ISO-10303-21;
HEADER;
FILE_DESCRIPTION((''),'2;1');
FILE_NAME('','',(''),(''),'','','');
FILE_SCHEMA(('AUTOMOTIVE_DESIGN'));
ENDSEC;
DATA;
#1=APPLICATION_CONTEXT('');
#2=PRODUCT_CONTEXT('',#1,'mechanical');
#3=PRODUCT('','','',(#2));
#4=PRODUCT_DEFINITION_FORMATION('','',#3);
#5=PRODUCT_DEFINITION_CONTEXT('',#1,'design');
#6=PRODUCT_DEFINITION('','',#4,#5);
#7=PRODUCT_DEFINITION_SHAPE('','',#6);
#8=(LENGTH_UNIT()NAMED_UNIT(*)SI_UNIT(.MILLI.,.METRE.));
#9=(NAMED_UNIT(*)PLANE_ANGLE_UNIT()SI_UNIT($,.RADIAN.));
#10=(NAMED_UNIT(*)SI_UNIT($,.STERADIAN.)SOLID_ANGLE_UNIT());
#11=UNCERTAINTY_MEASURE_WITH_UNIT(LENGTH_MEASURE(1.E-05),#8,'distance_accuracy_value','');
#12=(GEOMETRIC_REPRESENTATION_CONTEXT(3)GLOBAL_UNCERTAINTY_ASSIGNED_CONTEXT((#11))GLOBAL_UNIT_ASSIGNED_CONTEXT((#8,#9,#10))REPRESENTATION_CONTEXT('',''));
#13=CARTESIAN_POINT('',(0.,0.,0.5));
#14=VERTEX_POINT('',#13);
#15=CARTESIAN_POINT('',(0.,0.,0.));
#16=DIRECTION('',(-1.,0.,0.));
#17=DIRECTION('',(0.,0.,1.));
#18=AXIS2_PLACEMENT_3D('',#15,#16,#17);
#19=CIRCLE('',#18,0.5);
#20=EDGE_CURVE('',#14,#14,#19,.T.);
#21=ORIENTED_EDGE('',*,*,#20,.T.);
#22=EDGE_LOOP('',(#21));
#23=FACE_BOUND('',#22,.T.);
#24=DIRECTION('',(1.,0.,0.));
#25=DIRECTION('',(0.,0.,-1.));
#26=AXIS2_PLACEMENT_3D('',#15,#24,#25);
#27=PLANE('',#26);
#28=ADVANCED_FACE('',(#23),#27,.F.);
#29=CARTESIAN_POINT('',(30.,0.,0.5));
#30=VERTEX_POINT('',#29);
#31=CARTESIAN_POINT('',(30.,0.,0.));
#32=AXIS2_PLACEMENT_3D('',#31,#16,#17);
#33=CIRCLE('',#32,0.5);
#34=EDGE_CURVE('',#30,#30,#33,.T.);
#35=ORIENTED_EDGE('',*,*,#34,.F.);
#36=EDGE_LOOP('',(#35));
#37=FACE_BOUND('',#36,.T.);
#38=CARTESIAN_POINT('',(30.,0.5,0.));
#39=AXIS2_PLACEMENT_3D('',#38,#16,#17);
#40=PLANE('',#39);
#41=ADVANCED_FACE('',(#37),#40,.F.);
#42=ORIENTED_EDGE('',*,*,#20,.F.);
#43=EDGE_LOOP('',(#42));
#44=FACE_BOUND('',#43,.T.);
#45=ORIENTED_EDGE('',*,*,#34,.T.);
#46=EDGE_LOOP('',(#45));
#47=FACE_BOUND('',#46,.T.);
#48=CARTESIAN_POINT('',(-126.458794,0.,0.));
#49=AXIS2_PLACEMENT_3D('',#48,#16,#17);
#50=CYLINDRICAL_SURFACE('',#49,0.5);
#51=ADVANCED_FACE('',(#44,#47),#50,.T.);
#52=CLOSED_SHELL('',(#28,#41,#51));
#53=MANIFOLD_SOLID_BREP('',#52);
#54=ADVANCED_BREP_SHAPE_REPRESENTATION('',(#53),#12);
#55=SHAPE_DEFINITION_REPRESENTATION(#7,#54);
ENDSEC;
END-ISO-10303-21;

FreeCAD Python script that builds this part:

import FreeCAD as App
import Part
import Sketcher
from FreeCAD import Vector
Q = App.Units.Quantity


def add_polygon(sketch, points):
    """Adds a closed chain of lines whose ends are joined by coincident constraints."""
    first, n = sketch.GeometryCount, len(points)
    for a, b in zip(points, points[1:] + points[:1]):
        sketch.addGeometry(Part.LineSegment(App.Vector(*a, 0), App.Vector(*b, 0)), False)
    for i in range(n):
        sketch.addConstraint(Sketcher.Constraint("Coincident", first + i, 2, first + (i + 1) % n, 1))

doc = App.newDocument("Part")
body = doc.addObject("PartDesign::Body", "Body")

# Sketch on XY plane
sketch1 = doc.addObject("Sketcher::SketchObject", "Sketch")
body.addObject(sketch1)
sketch1.AttachmentSupport = (doc.XY_Plane, [""])
sketch1.MapMode = "FlatFace"
add_polygon(sketch1, [(0, 0.5), (0, 0), (30, 0), (30, 0.5)])  # lines 0-3
sketch1.addConstraint([
    Sketcher.Constraint("Vertical", 0),
    Sketcher.Constraint("Horizontal", 1),
    Sketcher.Constraint("Vertical", 2),
    Sketcher.Constraint("Horizontal", 3),
    Sketcher.Constraint("Coincident", 0, 2, -1, 1),
    Sketcher.Constraint("DistanceX", 1, 1, 1, 2, Q("30 mm")),
    Sketcher.Constraint("DistanceY", 0, 2, 0, 1, Q("0.5 mm")),
])
revolution = doc.addObject("PartDesign::Revolution", "Revolution")
body.addObject(revolution)
revolution.Profile = sketch1
revolution.ReferenceAxis = (sketch1, ["H_Axis"])
revolution.Angle = 360

doc.recompute()
